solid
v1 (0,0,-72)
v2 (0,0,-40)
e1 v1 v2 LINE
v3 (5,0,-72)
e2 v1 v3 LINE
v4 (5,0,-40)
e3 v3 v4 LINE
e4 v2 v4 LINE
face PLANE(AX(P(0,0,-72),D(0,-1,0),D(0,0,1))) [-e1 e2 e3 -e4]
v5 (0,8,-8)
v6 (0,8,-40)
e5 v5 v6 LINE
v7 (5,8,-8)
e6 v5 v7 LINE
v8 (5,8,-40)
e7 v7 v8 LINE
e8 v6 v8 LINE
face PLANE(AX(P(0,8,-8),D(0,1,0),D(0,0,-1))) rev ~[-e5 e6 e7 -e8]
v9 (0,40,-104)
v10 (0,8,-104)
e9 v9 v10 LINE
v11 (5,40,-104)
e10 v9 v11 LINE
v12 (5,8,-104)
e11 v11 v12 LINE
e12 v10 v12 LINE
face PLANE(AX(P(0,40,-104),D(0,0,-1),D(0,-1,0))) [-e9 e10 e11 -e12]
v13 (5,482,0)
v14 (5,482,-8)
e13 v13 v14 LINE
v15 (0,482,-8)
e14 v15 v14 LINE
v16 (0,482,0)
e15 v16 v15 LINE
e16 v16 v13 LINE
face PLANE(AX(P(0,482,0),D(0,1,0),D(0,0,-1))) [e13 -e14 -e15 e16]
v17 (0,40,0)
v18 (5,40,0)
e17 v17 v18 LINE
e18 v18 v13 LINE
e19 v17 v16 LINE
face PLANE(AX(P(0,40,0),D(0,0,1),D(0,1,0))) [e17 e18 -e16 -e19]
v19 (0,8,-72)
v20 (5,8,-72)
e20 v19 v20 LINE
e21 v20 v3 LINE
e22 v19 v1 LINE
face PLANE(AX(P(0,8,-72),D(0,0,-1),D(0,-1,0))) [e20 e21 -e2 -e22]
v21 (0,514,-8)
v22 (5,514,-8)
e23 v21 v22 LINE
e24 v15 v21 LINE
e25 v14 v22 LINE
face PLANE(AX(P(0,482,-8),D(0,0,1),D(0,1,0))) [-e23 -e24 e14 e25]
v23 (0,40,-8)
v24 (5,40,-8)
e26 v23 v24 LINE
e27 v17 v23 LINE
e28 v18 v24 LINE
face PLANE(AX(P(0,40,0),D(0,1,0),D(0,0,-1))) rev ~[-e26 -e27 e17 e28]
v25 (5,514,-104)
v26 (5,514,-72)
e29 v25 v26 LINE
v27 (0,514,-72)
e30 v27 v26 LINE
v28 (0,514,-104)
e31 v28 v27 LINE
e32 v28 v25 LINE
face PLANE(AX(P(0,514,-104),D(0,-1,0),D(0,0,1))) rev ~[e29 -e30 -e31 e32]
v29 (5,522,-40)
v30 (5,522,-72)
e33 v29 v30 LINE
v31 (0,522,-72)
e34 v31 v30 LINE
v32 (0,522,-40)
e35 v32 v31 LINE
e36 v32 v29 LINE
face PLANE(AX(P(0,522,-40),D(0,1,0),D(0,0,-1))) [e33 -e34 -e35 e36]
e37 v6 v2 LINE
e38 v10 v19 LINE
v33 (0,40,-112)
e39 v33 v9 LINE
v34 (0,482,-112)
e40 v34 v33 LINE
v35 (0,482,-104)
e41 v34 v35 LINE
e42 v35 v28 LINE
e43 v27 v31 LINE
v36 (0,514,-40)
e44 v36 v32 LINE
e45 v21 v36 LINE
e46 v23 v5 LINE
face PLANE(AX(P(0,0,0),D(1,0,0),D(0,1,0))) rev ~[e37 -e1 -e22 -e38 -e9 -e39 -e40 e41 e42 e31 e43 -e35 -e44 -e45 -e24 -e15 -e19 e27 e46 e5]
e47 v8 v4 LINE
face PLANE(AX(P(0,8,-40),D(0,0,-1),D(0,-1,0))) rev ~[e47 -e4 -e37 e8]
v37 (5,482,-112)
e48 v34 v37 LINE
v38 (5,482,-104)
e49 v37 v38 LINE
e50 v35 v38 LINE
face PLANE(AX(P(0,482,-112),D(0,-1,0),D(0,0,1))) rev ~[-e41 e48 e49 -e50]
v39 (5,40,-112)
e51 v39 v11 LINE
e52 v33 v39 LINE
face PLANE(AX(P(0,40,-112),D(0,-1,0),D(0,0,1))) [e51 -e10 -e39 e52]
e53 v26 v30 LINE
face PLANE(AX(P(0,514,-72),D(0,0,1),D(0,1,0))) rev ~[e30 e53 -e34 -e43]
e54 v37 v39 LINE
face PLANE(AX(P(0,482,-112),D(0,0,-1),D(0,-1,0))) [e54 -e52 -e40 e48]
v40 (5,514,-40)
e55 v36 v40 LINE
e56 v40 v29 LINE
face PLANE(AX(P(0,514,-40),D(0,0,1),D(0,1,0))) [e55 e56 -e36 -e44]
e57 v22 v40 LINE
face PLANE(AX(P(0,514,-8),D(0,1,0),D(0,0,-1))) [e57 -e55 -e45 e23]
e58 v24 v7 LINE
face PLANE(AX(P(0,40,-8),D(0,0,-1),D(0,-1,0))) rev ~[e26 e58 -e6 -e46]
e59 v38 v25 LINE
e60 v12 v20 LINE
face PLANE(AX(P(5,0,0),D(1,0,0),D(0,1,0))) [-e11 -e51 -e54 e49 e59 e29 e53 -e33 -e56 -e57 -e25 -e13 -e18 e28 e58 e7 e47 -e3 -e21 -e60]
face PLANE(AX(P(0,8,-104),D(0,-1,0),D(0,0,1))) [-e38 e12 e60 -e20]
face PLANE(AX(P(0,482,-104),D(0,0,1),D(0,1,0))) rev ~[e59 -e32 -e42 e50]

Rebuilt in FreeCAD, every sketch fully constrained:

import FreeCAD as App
import Part
import Sketcher


def add_polygon(sketch, points):
    """Adds a closed chain of lines whose ends are joined by coincident constraints."""
    first, n = sketch.GeometryCount, len(points)
    for a, b in zip(points, points[1:] + points[:1]):
        sketch.addGeometry(Part.LineSegment(App.Vector(*a, 0), App.Vector(*b, 0)), False)
    for i in range(n):
        sketch.addConstraint(Sketcher.Constraint("Coincident", first + i, 2, first + (i + 1) % n, 1))

doc = App.newDocument("Part")
body = doc.addObject("PartDesign::Body", "Body")

sketch1 = body.newObject("Sketcher::SketchObject", "Sketch")
sketch1.AttachmentSupport = (doc.getObject("YZ_Plane"), [""])
sketch1.MapMode = "FlatFace"
add_polygon(sketch1, [(482, 0), (40, 0), (40, -8), (8, -8), (8, -40), (0, -40), (0, -72), (8, -72), (8, -104), (40, -104), (40, -112), (482, -112), (482, -104), (514, -104), (514, -72), (522, -72), (522, -40), (514, -40), (514, -8), (482, -8)])
sketch1.addConstraint([
    Sketcher.Constraint("Horizontal", 0),
    Sketcher.Constraint("Vertical", 1),
    Sketcher.Constraint("Horizontal", 2),
    Sketcher.Constraint("Vertical", 3),
    Sketcher.Constraint("Horizontal", 4),
    Sketcher.Constraint("Vertical", 5),
    Sketcher.Constraint("Horizontal", 6),
    Sketcher.Constraint("Vertical", 7),
    Sketcher.Constraint("Horizontal", 8),
    Sketcher.Constraint("Vertical", 9),
    Sketcher.Constraint("Horizontal", 10),
    Sketcher.Constraint("Vertical", 11),
    Sketcher.Constraint("Horizontal", 12),
    Sketcher.Constraint("Vertical", 13),
    Sketcher.Constraint("Horizontal", 14),
    Sketcher.Constraint("Vertical", 15),
    Sketcher.Constraint("Horizontal", 16),
    Sketcher.Constraint("Vertical", 17),
    Sketcher.Constraint("Horizontal", 18),
    Sketcher.Constraint("Vertical", 19),
    Sketcher.Constraint("PointOnObject", 0, 2, -1),
    Sketcher.Constraint("PointOnObject", 4, 2, -2),
    Sketcher.Constraint("Horizontal", 8, 2, 11, 2),
    Sketcher.Constraint("Horizontal", 6, 2, 13, 2),
    Sketcher.Constraint("Horizontal", 4, 2, 15, 2),
    Sketcher.Constraint("Horizontal", 2, 2, 17, 2),
    Sketcher.Constraint("Vertical", 3, 2, 6, 2),
    Sketcher.Constraint("Vertical", 1, 2, 8, 2),
    Sketcher.Constraint("Vertical", 13, 2, 16, 2),
    Sketcher.Constraint("Vertical", 11, 2, 18, 2),
    Sketcher.Constraint("Equal", 8, 12),
    Sketcher.Constraint("Equal", 6, 14),
    Sketcher.Constraint("Equal", 16, 1),
    Sketcher.Constraint("Equal", 18, 3),
    Sketcher.Constraint("Equal", 3, 5),
    Sketcher.Constraint("Equal", 5, 7),
    Sketcher.Constraint("Equal", 1, 9),
    Sketcher.Constraint("DistanceX", 4, 2, 4, 1, 8.0),
    Sketcher.Constraint("DistanceX", -1, 1, 0, 2, 40.0),
    Sketcher.Constraint("DistanceX", -1, 1, 14, 2, 522.0),
])
pad1 = body.newObject("PartDesign::Pad", "Pad")
pad1.Profile = sketch1
pad1.Length = 5

doc.recompute()
